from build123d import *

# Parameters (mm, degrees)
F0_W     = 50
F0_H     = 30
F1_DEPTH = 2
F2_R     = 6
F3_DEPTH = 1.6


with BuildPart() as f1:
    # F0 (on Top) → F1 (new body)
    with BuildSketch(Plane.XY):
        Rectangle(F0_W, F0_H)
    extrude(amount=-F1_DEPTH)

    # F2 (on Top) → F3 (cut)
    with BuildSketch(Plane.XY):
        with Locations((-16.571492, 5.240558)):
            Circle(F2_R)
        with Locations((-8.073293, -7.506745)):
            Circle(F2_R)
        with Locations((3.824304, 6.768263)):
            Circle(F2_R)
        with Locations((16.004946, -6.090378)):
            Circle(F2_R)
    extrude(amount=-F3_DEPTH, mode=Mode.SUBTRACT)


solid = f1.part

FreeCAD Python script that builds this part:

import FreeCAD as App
import Part
import Sketcher

V = App.Vector
Q = App.Units.Quantity


def add_polygon(sketch, points):
    """Adds a closed chain of lines whose ends are joined by coincident constraints."""
    first, n = sketch.GeometryCount, len(points)
    for a, b in zip(points, points[1:] + points[:1]):
        sketch.addGeometry(Part.LineSegment(App.Vector(*a, 0), App.Vector(*b, 0)), False)
    for i in range(n):
        sketch.addConstraint(Sketcher.Constraint("Coincident", first + i, 2, first + (i + 1) % n, 1))

doc = App.newDocument("Part")
body = doc.addObject("PartDesign::Body", "Body")

sketch1 = body.newObject("Sketcher::SketchObject", "Sketch")
sketch1.AttachmentSupport = (doc.getObject("XY_Plane"), [""])
sketch1.MapMode = "FlatFace"
add_polygon(sketch1, [(-25, 15), (-25, -15), (25, -15), (25, 15)])
sketch1.addConstraint(Sketcher.Constraint("Vertical", 0))
sketch1.addConstraint(Sketcher.Constraint("Horizontal", 1))
sketch1.addConstraint(Sketcher.Constraint("Vertical", 2))
sketch1.addConstraint(Sketcher.Constraint("Horizontal", 3))
sketch1.addConstraint(Sketcher.Constraint("Symmetric", 0, 2, 2, 2, -1, 1))
sketch1.addConstraint(Sketcher.Constraint("DistanceX", 1, 1, 1, 2, Q("50 mm")))
sketch1.addConstraint(Sketcher.Constraint("DistanceY", 0, 2, 0, 1, Q("30 mm")))
pad1 = body.newObject("PartDesign::Pad", "Pad")
pad1.Profile = sketch1
pad1.Length = 2
pad1.Reversed = True

sketch2 = body.newObject("Sketcher::SketchObject", "Sketch001")
sketch2.AttachmentSupport = (doc.getObject("XY_Plane"), [""])
sketch2.MapMode = "FlatFace"
sketch2.addGeometry(Part.Circle(V(-17, 5, 0), V(0, 0, 1), 6), False)
sketch2.addGeometry(Part.Circle(V(-8, -8, 0), V(0, 0, 1), 6), False)
sketch2.addGeometry(Part.Circle(V(4, 7, 0), V(0, 0, 1), 6), False)
sketch2.addGeometry(Part.Circle(V(16, -6, 0), V(0, 0, 1), 6), False)
sketch2.addConstraint(Sketcher.Constraint("Equal", 0, 1))
sketch2.addConstraint(Sketcher.Constraint("Equal", 1, 2))
sketch2.addConstraint(Sketcher.Constraint("Equal", 2, 3))
sketch2.addConstraint(Sketcher.Constraint("Diameter", 0, Q("12 mm")))
sketch2.addConstraint(Sketcher.Constraint("DistanceX", 0, 3, 1, 3, Q("8.498199 mm")))
sketch2.addConstraint(Sketcher.Constraint("DistanceX", 0, 3, -1, 1, Q("16.571492 mm")))
sketch2.addConstraint(Sketcher.Constraint("DistanceY", 3, 3, -1, 1, Q("6.090378 mm")))
sketch2.addConstraint(Sketcher.Constraint("DistanceY", 3, 3, 2, 3, Q("12.858641 mm")))
sketch2.addConstraint(Sketcher.Constraint("DistanceX", 1, 3, 3, 3, Q("24.078239 mm")))
sketch2.addConstraint(Sketcher.Constraint("DistanceY", -1, 1, 0, 3, Q("5.240558 mm")))
sketch2.addConstraint(Sketcher.Constraint("DistanceY", 1, 3, -1, 1, Q("7.506745 mm")))
sketch2.addConstraint(Sketcher.Constraint("DistanceX", -1, 1, 2, 3, Q("3.824304 mm")))
pocket1 = body.newObject("PartDesign::Pocket", "Pocket")
pocket1.Profile = sketch2
pocket1.Length = 1.6

doc.recompute()
